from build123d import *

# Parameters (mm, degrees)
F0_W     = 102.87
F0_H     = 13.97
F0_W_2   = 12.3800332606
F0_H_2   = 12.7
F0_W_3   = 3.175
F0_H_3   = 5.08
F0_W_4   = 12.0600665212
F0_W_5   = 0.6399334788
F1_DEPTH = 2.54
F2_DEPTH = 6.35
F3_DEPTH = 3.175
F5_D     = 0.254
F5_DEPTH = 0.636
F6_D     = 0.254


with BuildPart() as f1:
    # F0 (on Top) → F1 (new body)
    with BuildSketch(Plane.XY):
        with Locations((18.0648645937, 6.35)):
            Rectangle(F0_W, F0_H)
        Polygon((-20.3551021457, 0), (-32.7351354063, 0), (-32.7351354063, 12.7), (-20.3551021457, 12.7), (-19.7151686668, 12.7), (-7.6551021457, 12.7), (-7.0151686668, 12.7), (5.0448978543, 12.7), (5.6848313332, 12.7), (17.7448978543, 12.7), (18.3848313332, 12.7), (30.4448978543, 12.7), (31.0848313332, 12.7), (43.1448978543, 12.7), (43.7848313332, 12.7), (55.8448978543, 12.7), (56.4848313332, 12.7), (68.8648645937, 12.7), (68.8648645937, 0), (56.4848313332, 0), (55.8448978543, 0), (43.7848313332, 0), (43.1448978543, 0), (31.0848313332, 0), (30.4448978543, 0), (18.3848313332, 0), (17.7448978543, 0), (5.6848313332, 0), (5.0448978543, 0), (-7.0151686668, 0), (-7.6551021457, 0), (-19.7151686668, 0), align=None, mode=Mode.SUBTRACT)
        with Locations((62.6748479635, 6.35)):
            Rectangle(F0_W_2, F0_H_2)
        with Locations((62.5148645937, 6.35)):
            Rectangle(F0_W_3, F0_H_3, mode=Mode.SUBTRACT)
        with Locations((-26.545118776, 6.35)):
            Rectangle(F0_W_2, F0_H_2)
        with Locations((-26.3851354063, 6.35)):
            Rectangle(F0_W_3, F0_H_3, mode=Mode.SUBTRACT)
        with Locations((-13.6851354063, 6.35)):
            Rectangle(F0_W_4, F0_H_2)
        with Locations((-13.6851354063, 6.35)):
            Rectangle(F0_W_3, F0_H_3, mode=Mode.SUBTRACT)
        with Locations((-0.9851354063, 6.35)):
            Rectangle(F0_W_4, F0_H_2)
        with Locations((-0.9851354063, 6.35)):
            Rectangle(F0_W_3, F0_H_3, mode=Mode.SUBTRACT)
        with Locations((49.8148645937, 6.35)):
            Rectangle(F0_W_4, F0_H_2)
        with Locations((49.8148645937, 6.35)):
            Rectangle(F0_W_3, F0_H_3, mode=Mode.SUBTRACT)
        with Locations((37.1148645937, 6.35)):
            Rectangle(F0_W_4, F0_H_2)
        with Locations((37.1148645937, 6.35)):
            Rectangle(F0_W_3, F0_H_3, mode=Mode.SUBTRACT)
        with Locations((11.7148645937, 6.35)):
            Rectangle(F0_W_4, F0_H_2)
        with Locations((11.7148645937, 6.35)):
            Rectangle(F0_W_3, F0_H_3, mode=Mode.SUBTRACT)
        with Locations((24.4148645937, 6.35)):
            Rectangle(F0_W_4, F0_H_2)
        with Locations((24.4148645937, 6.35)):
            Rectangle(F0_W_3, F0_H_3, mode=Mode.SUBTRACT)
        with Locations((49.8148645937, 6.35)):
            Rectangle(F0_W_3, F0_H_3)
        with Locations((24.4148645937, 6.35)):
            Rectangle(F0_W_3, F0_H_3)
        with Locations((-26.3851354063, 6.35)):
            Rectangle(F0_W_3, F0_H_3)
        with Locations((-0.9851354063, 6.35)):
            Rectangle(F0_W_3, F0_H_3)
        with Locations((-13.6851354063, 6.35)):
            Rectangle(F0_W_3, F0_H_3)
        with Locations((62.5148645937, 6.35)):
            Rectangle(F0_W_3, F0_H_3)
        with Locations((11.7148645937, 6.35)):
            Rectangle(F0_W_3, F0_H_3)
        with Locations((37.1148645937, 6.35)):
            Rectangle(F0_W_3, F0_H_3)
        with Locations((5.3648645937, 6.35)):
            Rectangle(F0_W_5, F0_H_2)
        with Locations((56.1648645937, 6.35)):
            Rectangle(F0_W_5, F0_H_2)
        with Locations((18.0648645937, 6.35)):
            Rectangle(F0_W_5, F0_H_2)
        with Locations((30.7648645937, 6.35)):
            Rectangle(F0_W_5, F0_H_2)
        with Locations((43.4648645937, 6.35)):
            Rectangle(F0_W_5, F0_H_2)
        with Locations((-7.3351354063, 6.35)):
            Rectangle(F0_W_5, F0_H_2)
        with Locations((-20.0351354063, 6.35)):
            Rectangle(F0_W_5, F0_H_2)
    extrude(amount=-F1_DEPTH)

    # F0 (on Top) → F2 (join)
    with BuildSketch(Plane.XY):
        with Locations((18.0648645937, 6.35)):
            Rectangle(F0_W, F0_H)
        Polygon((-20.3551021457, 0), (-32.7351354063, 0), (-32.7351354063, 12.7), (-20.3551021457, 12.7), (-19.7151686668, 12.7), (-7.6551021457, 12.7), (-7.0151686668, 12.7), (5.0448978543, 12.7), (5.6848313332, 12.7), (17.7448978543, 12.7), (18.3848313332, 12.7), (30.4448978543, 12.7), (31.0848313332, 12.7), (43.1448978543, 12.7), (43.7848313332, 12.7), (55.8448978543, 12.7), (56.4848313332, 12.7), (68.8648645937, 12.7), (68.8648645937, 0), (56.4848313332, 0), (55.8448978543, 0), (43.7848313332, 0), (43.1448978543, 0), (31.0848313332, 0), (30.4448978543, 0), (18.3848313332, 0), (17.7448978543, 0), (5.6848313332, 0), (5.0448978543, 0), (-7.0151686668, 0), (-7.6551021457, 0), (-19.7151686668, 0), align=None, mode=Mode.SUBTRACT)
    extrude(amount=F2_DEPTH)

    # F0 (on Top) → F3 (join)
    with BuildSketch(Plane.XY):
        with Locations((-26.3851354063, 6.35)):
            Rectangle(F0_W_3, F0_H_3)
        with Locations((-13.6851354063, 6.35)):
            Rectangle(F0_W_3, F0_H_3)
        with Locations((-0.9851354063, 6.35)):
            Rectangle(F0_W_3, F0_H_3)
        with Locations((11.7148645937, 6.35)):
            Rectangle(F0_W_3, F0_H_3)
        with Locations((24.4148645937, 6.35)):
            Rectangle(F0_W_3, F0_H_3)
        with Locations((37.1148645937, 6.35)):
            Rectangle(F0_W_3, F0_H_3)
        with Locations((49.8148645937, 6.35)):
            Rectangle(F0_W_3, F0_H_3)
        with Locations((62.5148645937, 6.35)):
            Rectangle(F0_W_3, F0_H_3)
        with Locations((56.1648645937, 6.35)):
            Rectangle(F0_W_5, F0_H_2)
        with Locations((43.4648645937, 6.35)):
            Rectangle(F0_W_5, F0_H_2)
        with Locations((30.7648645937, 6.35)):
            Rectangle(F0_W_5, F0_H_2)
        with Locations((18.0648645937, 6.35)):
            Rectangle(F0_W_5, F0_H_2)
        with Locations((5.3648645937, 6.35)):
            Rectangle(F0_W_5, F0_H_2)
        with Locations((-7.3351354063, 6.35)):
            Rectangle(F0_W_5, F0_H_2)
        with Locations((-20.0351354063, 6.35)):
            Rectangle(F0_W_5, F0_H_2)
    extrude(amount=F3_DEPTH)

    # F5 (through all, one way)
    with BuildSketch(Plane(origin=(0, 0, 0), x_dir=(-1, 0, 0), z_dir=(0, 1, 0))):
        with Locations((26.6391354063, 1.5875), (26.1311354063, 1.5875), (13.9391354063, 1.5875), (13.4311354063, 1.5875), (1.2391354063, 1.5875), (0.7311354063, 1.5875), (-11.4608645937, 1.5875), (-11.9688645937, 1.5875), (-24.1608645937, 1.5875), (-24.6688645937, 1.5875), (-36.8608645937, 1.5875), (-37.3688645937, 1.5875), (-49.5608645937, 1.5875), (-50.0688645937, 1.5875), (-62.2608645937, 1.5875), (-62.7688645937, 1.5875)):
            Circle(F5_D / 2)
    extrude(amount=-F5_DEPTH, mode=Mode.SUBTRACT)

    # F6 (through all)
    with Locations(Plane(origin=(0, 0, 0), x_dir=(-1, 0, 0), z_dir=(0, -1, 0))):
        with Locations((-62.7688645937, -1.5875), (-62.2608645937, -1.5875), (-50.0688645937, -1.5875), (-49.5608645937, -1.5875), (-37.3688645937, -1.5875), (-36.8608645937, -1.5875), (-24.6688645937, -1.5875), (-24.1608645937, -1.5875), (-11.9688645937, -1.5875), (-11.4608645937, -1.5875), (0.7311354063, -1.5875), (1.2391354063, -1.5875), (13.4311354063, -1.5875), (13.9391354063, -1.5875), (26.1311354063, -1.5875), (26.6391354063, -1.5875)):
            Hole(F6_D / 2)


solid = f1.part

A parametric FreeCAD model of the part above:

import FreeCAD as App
import Part
import Sketcher
Q = App.Units.Quantity


def add_polygon(sketch, points):
    """Adds a closed chain of lines whose ends are joined by coincident constraints."""
    first, n = sketch.GeometryCount, len(points)
    for a, b in zip(points, points[1:] + points[:1]):
        sketch.addGeometry(Part.LineSegment(App.Vector(*a, 0), App.Vector(*b, 0)), False)
    for i in range(n):
        sketch.addConstraint(Sketcher.Constraint("Coincident", first + i, 2, first + (i + 1) % n, 1))

doc = App.newDocument("Part")
body = doc.addObject("PartDesign::Body", "Body")

sketch1 = body.newObject("Sketcher::SketchObject", "Sketch")
sketch1.AttachmentSupport = (doc.getObject("XY_Plane"), [""])
sketch1.MapMode = "FlatFace"
add_polygon(sketch1, [(-33.370135, 13.335), (-33.370135, -0.635), (69.499865, -0.635), (69.499865, 13.335)])
sketch1.addConstraint([
    Sketcher.Constraint("Vertical", 0),
    Sketcher.Constraint("Horizontal", 1),
    Sketcher.Constraint("Vertical", 2),
    Sketcher.Constraint("Horizontal", 3),
    Sketcher.Constraint("DistanceX", 1, 1, 1, 2, Q("4.05 in")),
    Sketcher.Constraint("DistanceY", 0, 2, 0, 1, Q("0.55 in")),
    Sketcher.Constraint("DistanceY", 0, 2, -1, 1, Q("0.025 in")),
    Sketcher.Constraint("DistanceX", 0, 2, -1, 1, 33.370135),
])
pad1 = body.newObject("PartDesign::Pad", "Pad")
pad1.Profile = sketch1
pad1.Length = Q("0.1 in")
pad1.Reversed = True

sketch2 = body.newObject("Sketcher::SketchObject", "Sketch001")
sketch2.AttachmentSupport = (doc.getObject("XY_Plane"), [""])
sketch2.MapMode = "FlatFace"
add_polygon(sketch2, [(-33.370135, 13.335), (-33.370135, -0.635), (69.499865, -0.635), (69.499865, 13.335)])
add_polygon(sketch2, [(68.864865, 0), (-32.735135, 0), (-32.735135, 12.7), (68.864865, 12.7)])
sketch2.addConstraint([
    Sketcher.Constraint("Vertical", 0),
    Sketcher.Constraint("Horizontal", 1),
    Sketcher.Constraint("Vertical", 2),
    Sketcher.Constraint("Horizontal", 3),
    Sketcher.Constraint("Horizontal", 4),
    Sketcher.Constraint("Vertical", 5),
    Sketcher.Constraint("Horizontal", 6),
    Sketcher.Constraint("Vertical", 7),
    Sketcher.Constraint("PointOnObject", 4, 2, -1),
    Sketcher.Constraint("DistanceX", 4, 2, 4, 1, Q("4 in")),
    Sketcher.Constraint("DistanceY", 5, 1, 5, 2, Q("0.5 in")),
    Sketcher.Constraint("DistanceX", 1, 1, 1, 2, Q("4.05 in")),
    Sketcher.Constraint("DistanceY", 0, 2, 0, 1, Q("0.55 in")),
    Sketcher.Constraint("DistanceY", 0, 2, -1, 1, Q("0.025 in")),
    Sketcher.Constraint("DistanceX", 0, 2, 4, 2, Q("0.025 in")),
    Sketcher.Constraint("DistanceX", 0, 2, -1, 1, 33.370135),
])
pad2 = body.newObject("PartDesign::Pad", "Pad001")
pad2.Profile = sketch2
pad2.Length = Q("0.25 in")

sketch3 = body.newObject("Sketcher::SketchObject", "Sketch002")
sketch3.AttachmentSupport = (doc.getObject("XY_Plane"), [""])
sketch3.MapMode = "FlatFace"
add_polygon(sketch3, [(-27.972635, 8.89), (-27.972635, 3.81), (-24.797635, 3.81), (-24.797635, 8.89)])
add_polygon(sketch3, [(-15.272635, 8.89), (-15.272635, 3.81), (-12.097635, 3.81), (-12.097635, 8.89)])
add_polygon(sketch3, [(-2.572635, 8.89), (-2.572635, 3.81), (0.602365, 3.81), (0.602365, 8.89)])
add_polygon(sketch3, [(10.127365, 8.89), (10.127365, 3.81), (13.302365, 3.81), (13.302365, 8.89)])
add_polygon(sketch3, [(22.827365, 8.89), (22.827365, 3.81), (26.002365, 3.81), (26.002365, 8.89)])
add_polygon(sketch3, [(35.527365, 8.89), (35.527365, 3.81), (38.702365, 3.81), (38.702365, 8.89)])
add_polygon(sketch3, [(48.227365, 8.89), (48.227365, 3.81), (51.402365, 3.81), (51.402365, 8.89)])
add_polygon(sketch3, [(60.927365, 8.89), (60.927365, 3.81), (64.102365, 3.81), (64.102365, 8.89)])
add_polygon(sketch3, [(55.844898, 12.7), (55.844898, 0), (56.484831, 0), (56.484831, 12.7)])
add_polygon(sketch3, [(43.144898, 12.7), (43.144898, 0), (43.784831, 0), (43.784831, 12.7)])
add_polygon(sketch3, [(30.444898, 12.7), (30.444898, 0), (31.084831, 0), (31.084831, 12.7)])
add_polygon(sketch3, [(17.744898, 12.7), (17.744898, 0), (18.384831, 0), (18.384831, 12.7)])
add_polygon(sketch3, [(5.044898, 12.7), (5.044898, 0), (5.684831, 0), (5.684831, 12.7)])
add_polygon(sketch3, [(-7.655102, 12.7), (-7.655102, 0), (-7.015169, 0), (-7.015169, 12.7)])
add_polygon(sketch3, [(-20.355102, 12.7), (-20.355102, 0), (-19.715169, 0), (-19.715169, 12.7)])
sketch3.addConstraint([
    Sketcher.Constraint("Vertical", 0),
    Sketcher.Constraint("Horizontal", 1),
    Sketcher.Constraint("Vertical", 2),
    Sketcher.Constraint("Horizontal", 3),
    Sketcher.Constraint("Vertical", 4),
    Sketcher.Constraint("Horizontal", 5),
    Sketcher.Constraint("Vertical", 6),
    Sketcher.Constraint("Horizontal", 7),
    Sketcher.Constraint("Vertical", 8),
    Sketcher.Constraint("Horizontal", 9),
    Sketcher.Constraint("Vertical", 10),
    Sketcher.Constraint("Horizontal", 11),
    Sketcher.Constraint("Vertical", 12),
    Sketcher.Constraint("Horizontal", 13),
    Sketcher.Constraint("Vertical", 14),
    Sketcher.Constraint("Horizontal", 15),
    Sketcher.Constraint("Vertical", 16),
    Sketcher.Constraint("Horizontal", 17),
    Sketcher.Constraint("Vertical", 18),
    Sketcher.Constraint("Horizontal", 19),
    Sketcher.Constraint("Vertical", 20),
    Sketcher.Constraint("Horizontal", 21),
    Sketcher.Constraint("Vertical", 22),
    Sketcher.Constraint("Horizontal", 23),
    Sketcher.Constraint("Vertical", 24),
    Sketcher.Constraint("Horizontal", 25),
    Sketcher.Constraint("Vertical", 26),
    Sketcher.Constraint("Horizontal", 27),
    Sketcher.Constraint("Vertical", 28),
    Sketcher.Constraint("Horizontal", 29),
    Sketcher.Constraint("Vertical", 30),
    Sketcher.Constraint("Horizontal", 31),
    Sketcher.Constraint("Vertical", 32),
    Sketcher.Constraint("Horizontal", 33),
    Sketcher.Constraint("Vertical", 34),
    Sketcher.Constraint("Horizontal", 35),
    Sketcher.Constraint("Vertical", 36),
    Sketcher.Constraint("Horizontal", 37),
    Sketcher.Constraint("Vertical", 38),
    Sketcher.Constraint("Horizontal", 39),
    Sketcher.Constraint("Vertical", 40),
    Sketcher.Constraint("Horizontal", 41),
    Sketcher.Constraint("Vertical", 42),
    Sketcher.Constraint("Horizontal", 43),
    Sketcher.Constraint("Vertical", 44),
    Sketcher.Constraint("Horizontal", 45),
    Sketcher.Constraint("Vertical", 46),
    Sketcher.Constraint("Horizontal", 47),
    Sketcher.Constraint("Vertical", 48),
    Sketcher.Constraint("Horizontal", 49),
    Sketcher.Constraint("Vertical", 50),
    Sketcher.Constraint("Horizontal", 51),
    Sketcher.Constraint("Vertical", 52),
    Sketcher.Constraint("Horizontal", 53),
    Sketcher.Constraint("Vertical", 54),
    Sketcher.Constraint("Horizontal", 55),
    Sketcher.Constraint("Vertical", 56),
    Sketcher.Constraint("Horizontal", 57),
    Sketcher.Constraint("Vertical", 58),
    Sketcher.Constraint("Horizontal", 59),
    Sketcher.Constraint("PointOnObject", 32, 2, -1),
    Sketcher.Constraint("PointOnObject", 36, 2, -1),
    Sketcher.Constraint("PointOnObject", 40, 2, -1),
    Sketcher.Constraint("PointOnObject", 44, 2, -1),
    Sketcher.Constraint("PointOnObject", 48, 2, -1),
    Sketcher.Constraint("PointOnObject", 52, 2, -1),
    Sketcher.Constraint("PointOnObject", 56, 2, -1),
    Sketcher.Constraint("Horizontal", 1, 2, 4, 2),
    Sketcher.Constraint("Horizontal", 3, 2, 6, 2),
    Sketcher.Constraint("Horizontal", 5, 2, 8, 2),
    Sketcher.Constraint("Horizontal", 7, 2, 10, 2),
    Sketcher.Constraint("Horizontal", 9, 2, 12, 2),
    Sketcher.Constraint("Horizontal", 11, 2, 14, 2),
    Sketcher.Constraint("Horizontal", 13, 2, 16, 2),
    Sketcher.Constraint("Horizontal", 15, 2, 18, 2),
    Sketcher.Constraint("Horizontal", 17, 2, 20, 2),
    Sketcher.Constraint("Horizontal", 19, 2, 22, 2),
    Sketcher.Constraint("Horizontal", 21, 2, 24, 2),
    Sketcher.Constraint("Horizontal", 23, 2, 26, 2),
    Sketcher.Constraint("Horizontal", 25, 2, 28, 2),
    Sketcher.Constraint("Horizontal", 27, 2, 30, 2),
    Sketcher.Constraint("Horizontal", 35, 2, 38, 2),
    Sketcher.Constraint("Horizontal", 39, 2, 42, 2),
    Sketcher.Constraint("Horizontal", 43, 2, 46, 2),
    Sketcher.Constraint("Horizontal", 47, 2, 50, 2),
    Sketcher.Constraint("Horizontal", 51, 2, 54, 2),
    Sketcher.Constraint("Horizontal", 55, 2, 58, 2),
    Sketcher.Constraint("Equal", 3, 5),
    Sketcher.Constraint("Equal", 7, 9),
    Sketcher.Constraint("Equal", 11, 13),
    Sketcher.Constraint("Equal", 15, 17),
    Sketcher.Constraint("Equal", 19, 21),
    Sketcher.Constraint("Equal", 23, 25),
    Sketcher.Constraint("Equal", 27, 29),
    Sketcher.Constraint("Equal", 35, 37),
    Sketcher.Constraint("Equal", 39, 41),
    Sketcher.Constraint("Equal", 43, 45),
    Sketcher.Constraint("Equal", 47, 49),
    Sketcher.Constraint("Equal", 51, 53),
    Sketcher.Constraint("Equal", 55, 57),
    Sketcher.Constraint("DistanceY", 0, 2, 0, 1, Q("0.2 in")),
    Sketcher.Constraint("DistanceY", 32, 2, 32, 1, Q("0.5 in")),
    Sketcher.Constraint("DistanceX", 0, 2, 4, 2, Q("0.5 in")),
    Sketcher.Constraint("DistanceX", 4, 2, 8, 2, Q("0.5 in")),
    Sketcher.Constraint("DistanceX", 8, 2, 12, 2, Q("0.5 in")),
    Sketcher.Constraint("DistanceX", 12, 2, 16, 2, Q("0.5 in")),
    Sketcher.Constraint("DistanceX", 16, 2, 20, 2, Q("0.5 in")),
    Sketcher.Constraint("DistanceX", 20, 2, 24, 2, Q("0.5 in")),
    Sketcher.Constraint("DistanceX", 24, 2, 28, 2, Q("0.5 in")),
    Sketcher.Constraint("DistanceX", 1, 1, 1, 2, Q("0.125 in")),
    Sketcher.Constraint("DistanceY", -1, 1, 0, 2, Q("0.15 in")),
    Sketcher.Constraint("DistanceX", 33, 1, 33, 2, 0.639933),
    Sketcher.Constraint("DistanceX", -1, 1, 33, 2, 56.484831),
    Sketcher.Constraint("DistanceX", -1, 1, 37, 2, 43.784831),
    Sketcher.Constraint("DistanceX", -1, 1, 41, 2, 31.084831),
    Sketcher.Constraint("DistanceX", -1, 1, 45, 2, 18.384831),
    Sketcher.Constraint("DistanceX", -1, 1, 49, 2, 5.684831),
    Sketcher.Constraint("DistanceX", 53, 2, -1, 1, 7.015169),
    Sketcher.Constraint("DistanceX", 57, 2, -1, 1, 19.715169),
    Sketcher.Constraint("DistanceX", 0, 2, -1, 1, 27.972635),
])
pad3 = body.newObject("PartDesign::Pad", "Pad002")
pad3.Profile = sketch3
pad3.Length = Q("0.125 in")

sketch4 = body.newObject("Sketcher::SketchObject", "Sketch003")
sketch4.AttachmentSupport = (doc.getObject("XZ_Plane"), [""])
sketch4.MapMode = "FlatFace"
sketch4.addGeometry([
    Part.Circle(App.Vector(62.768865, 1.5875, 0), App.Vector(0, 0, 1), 0.127),
    Part.Circle(App.Vector(-26.639135, 1.5875, 0), App.Vector(0, 0, 1), 0.127),
    Part.Circle(App.Vector(-26.131135, 1.5875, 0), App.Vector(0, 0, 1), 0.127),
    Part.Circle(App.Vector(-13.939135, 1.5875, 0), App.Vector(0, 0, 1), 0.127),
    Part.Circle(App.Vector(-13.431135, 1.5875, 0), App.Vector(0, 0, 1), 0.127),
    Part.Circle(App.Vector(-1.239135, 1.5875, 0), App.Vector(0, 0, 1), 0.127),
    Part.Circle(App.Vector(-0.731135, 1.5875, 0), App.Vector(0, 0, 1), 0.127),
    Part.Circle(App.Vector(11.460865, 1.5875, 0), App.Vector(0, 0, 1), 0.127),
    Part.Circle(App.Vector(11.968865, 1.5875, 0), App.Vector(0, 0, 1), 0.127),
    Part.Circle(App.Vector(24.160865, 1.5875, 0), App.Vector(0, 0, 1), 0.127),
    Part.Circle(App.Vector(24.668865, 1.5875, 0), App.Vector(0, 0, 1), 0.127),
    Part.Circle(App.Vector(36.860865, 1.5875, 0), App.Vector(0, 0, 1), 0.127),
    Part.Circle(App.Vector(37.368865, 1.5875, 0), App.Vector(0, 0, 1), 0.127),
    Part.Circle(App.Vector(49.560865, 1.5875, 0), App.Vector(0, 0, 1), 0.127),
    Part.Circle(App.Vector(50.068865, 1.5875, 0), App.Vector(0, 0, 1), 0.127),
    Part.Circle(App.Vector(62.260865, 1.5875, 0), App.Vector(0, 0, 1), 0.127),
], False)
sketch4.addConstraint([
    Sketcher.Constraint("Equal", 0, 1),
    Sketcher.Constraint("Equal", 1, 2),
    Sketcher.Constraint("Equal", 2, 3),
    Sketcher.Constraint("Equal", 3, 4),
    Sketcher.Constraint("Equal", 4, 5),
    Sketcher.Constraint("Equal", 5, 6),
    Sketcher.Constraint("Equal", 6, 7),
    Sketcher.Constraint("Equal", 7, 8),
    Sketcher.Constraint("Equal", 8, 9),
    Sketcher.Constraint("Equal", 9, 10),
    Sketcher.Constraint("Equal", 10, 11),
    Sketcher.Constraint("Equal", 11, 12),
    Sketcher.Constraint("Equal", 12, 13),
    Sketcher.Constraint("Equal", 13, 14),
    Sketcher.Constraint("Equal", 14, 15),
    Sketcher.Constraint("Horizontal", 0, 3, 1, 3),
    Sketcher.Constraint("Horizontal", 1, 3, 2, 3),
    Sketcher.Constraint("Horizontal", 2, 3, 3, 3),
    Sketcher.Constraint("Horizontal", 3, 3, 4, 3),
    Sketcher.Constraint("Horizontal", 4, 3, 5, 3),
    Sketcher.Constraint("Horizontal", 5, 3, 6, 3),
    Sketcher.Constraint("Horizontal", 6, 3, 7, 3),
    Sketcher.Constraint("Horizontal", 7, 3, 8, 3),
    Sketcher.Constraint("Horizontal", 8, 3, 9, 3),
    Sketcher.Constraint("Horizontal", 9, 3, 10, 3),
    Sketcher.Constraint("Horizontal", 10, 3, 11, 3),
    Sketcher.Constraint("Horizontal", 11, 3, 12, 3),
    Sketcher.Constraint("Horizontal", 12, 3, 13, 3),
    Sketcher.Constraint("Horizontal", 13, 3, 14, 3),
    Sketcher.Constraint("Horizontal", 14, 3, 15, 3),
    Sketcher.Constraint("Diameter", 0, Q("0.01 in")),
    Sketcher.Constraint("DistanceX", 4, 3, 0, 3, Q("3 in")),
    Sketcher.Constraint("DistanceX", 1, 3, 5, 3, Q("1 in")),
    Sketcher.Constraint("DistanceX", 2, 3, 6, 3, Q("1 in")),
    Sketcher.Constraint("DistanceX", 3, 3, 7, 3, Q("1 in")),
    Sketcher.Constraint("DistanceX", 4, 3, 8, 3, Q("1 in")),
    Sketcher.Constraint("DistanceX", 5, 3, 9, 3, Q("1 in")),
    Sketcher.Constraint("DistanceX", 6, 3, 10, 3, Q("1 in")),
    Sketcher.Constraint("DistanceX", 7, 3, 11, 3, Q("1 in")),
    Sketcher.Constraint("DistanceX", 12, 3, 0, 3, Q("1 in")),
    Sketcher.Constraint("DistanceX", 9, 3, 13, 3, Q("1 in")),
    Sketcher.Constraint("DistanceX", 10, 3, 14, 3, Q("1 in")),
    Sketcher.Constraint("DistanceX", 11, 3, 15, 3, Q("1 in")),
    Sketcher.Constraint("DistanceX", 2, 3, 0, 3, Q("3.5 in")),
    Sketcher.Constraint("DistanceX", 1, 3, 3, 3, Q("0.5 in")),
    Sketcher.Constraint("DistanceX", 1, 3, 0, 3, Q("3.52 in")),
    Sketcher.Constraint("DistanceY", -1, 1, 0, 3, Q("0.0625 in")),
    Sketcher.Constraint("DistanceX", -1, 1, 0, 3, 62.768865),
])
pocket1 = body.newObject("PartDesign::Pocket", "Pocket")
pocket1.Profile = sketch4
pocket1.Type = "ThroughAll"
pocket1.Reversed = True

sketch5 = body.newObject("Sketcher::SketchObject", "Sketch004")
sketch5.AttachmentSupport = (doc.getObject("XZ_Plane"), [""])
sketch5.MapMode = "FlatFace"
sketch5.addGeometry([
    Part.Circle(App.Vector(62.768865, 1.5875, 0), App.Vector(0, 0, 1), 0.127),
    Part.Circle(App.Vector(62.260865, 1.5875, 0), App.Vector(0, 0, 1), 0.127),
    Part.Circle(App.Vector(50.068865, 1.5875, 0), App.Vector(0, 0, 1), 0.127),
    Part.Circle(App.Vector(49.560865, 1.5875, 0), App.Vector(0, 0, 1), 0.127),
    Part.Circle(App.Vector(37.368865, 1.5875, 0), App.Vector(0, 0, 1), 0.127),
    Part.Circle(App.Vector(36.860865, 1.5875, 0), App.Vector(0, 0, 1), 0.127),
    Part.Circle(App.Vector(24.668865, 1.5875, 0), App.Vector(0, 0, 1), 0.127),
    Part.Circle(App.Vector(24.160865, 1.5875, 0), App.Vector(0, 0, 1), 0.127),
    Part.Circle(App.Vector(11.968865, 1.5875, 0), App.Vector(0, 0, 1), 0.127),
    Part.Circle(App.Vector(11.460865, 1.5875, 0), App.Vector(0, 0, 1), 0.127),
    Part.Circle(App.Vector(-0.731135, 1.5875, 0), App.Vector(0, 0, 1), 0.127),
    Part.Circle(App.Vector(-1.239135, 1.5875, 0), App.Vector(0, 0, 1), 0.127),
    Part.Circle(App.Vector(-13.431135, 1.5875, 0), App.Vector(0, 0, 1), 0.127),
    Part.Circle(App.Vector(-13.939135, 1.5875, 0), App.Vector(0, 0, 1), 0.127),
    Part.Circle(App.Vector(-26.131135, 1.5875, 0), App.Vector(0, 0, 1), 0.127),
    Part.Circle(App.Vector(-26.639135, 1.5875, 0), App.Vector(0, 0, 1), 0.127),
], False)
sketch5.addConstraint([
    Sketcher.Constraint("Equal", 0, 1),
    Sketcher.Constraint("Equal", 1, 2),
    Sketcher.Constraint("Equal", 2, 3),
    Sketcher.Constraint("Equal", 3, 4),
    Sketcher.Constraint("Equal", 4, 5),
    Sketcher.Constraint("Equal", 5, 6),
    Sketcher.Constraint("Equal", 6, 7),
    Sketcher.Constraint("Equal", 7, 8),
    Sketcher.Constraint("Equal", 8, 9),
    Sketcher.Constraint("Equal", 9, 10),
    Sketcher.Constraint("Equal", 10, 11),
    Sketcher.Constraint("Equal", 11, 12),
    Sketcher.Constraint("Equal", 12, 13),
    Sketcher.Constraint("Equal", 13, 14),
    Sketcher.Constraint("Equal", 14, 15),
    Sketcher.Constraint("Horizontal", 0, 3, 1, 3),
    Sketcher.Constraint("Horizontal", 1, 3, 2, 3),
    Sketcher.Constraint("Horizontal", 2, 3, 3, 3),
    Sketcher.Constraint("Horizontal", 3, 3, 4, 3),
    Sketcher.Constraint("Horizontal", 4, 3, 5, 3),
    Sketcher.Constraint("Horizontal", 5, 3, 6, 3),
    Sketcher.Constraint("Horizontal", 6, 3, 7, 3),
    Sketcher.Constraint("Horizontal", 7, 3, 8, 3),
    Sketcher.Constraint("Horizontal", 8, 3, 9, 3),
    Sketcher.Constraint("Horizontal", 9, 3, 10, 3),
    Sketcher.Constraint("Horizontal", 10, 3, 11, 3),
    Sketcher.Constraint("Horizontal", 11, 3, 12, 3),
    Sketcher.Constraint("Horizontal", 12, 3, 13, 3),
    Sketcher.Constraint("Horizontal", 13, 3, 14, 3),
    Sketcher.Constraint("Horizontal", 14, 3, 15, 3),
    Sketcher.Constraint("Diameter", 0, Q("0.01 in")),
    Sketcher.Constraint("DistanceX", 4, 3, 0, 3, Q("1 in")),
    Sketcher.Constraint("DistanceX", 5, 3, 1, 3, Q("1 in")),
    Sketcher.Constraint("DistanceX", 6, 3, 2, 3, Q("1 in")),
    Sketcher.Constraint("DistanceX", 7, 3, 3, 3, Q("1 in")),
    Sketcher.Constraint("DistanceX", 8, 3, 4, 3, Q("1 in")),
    Sketcher.Constraint("DistanceX", 9, 3, 5, 3, Q("1 in")),
    Sketcher.Constraint("DistanceX", 10, 3, 6, 3, Q("1 in")),
    Sketcher.Constraint("DistanceX", 11, 3, 7, 3, Q("1 in")),
    Sketcher.Constraint("DistanceX", 12, 3, 8, 3, Q("1 in")),
    Sketcher.Constraint("DistanceX", 13, 3, 9, 3, Q("1 in")),
    Sketcher.Constraint("DistanceX", 14, 3, 10, 3, Q("1 in")),
    Sketcher.Constraint("DistanceX", 15, 3, 11, 3, Q("1 in")),
    Sketcher.Constraint("DistanceX", 2, 3, 0, 3, Q("0.5 in")),
    Sketcher.Constraint("DistanceX", 3, 3, 1, 3, Q("0.5 in")),
    Sketcher.Constraint("DistanceX", 1, 3, 0, 3, Q("0.02 in")),
    Sketcher.Constraint("DistanceY", -1, 1, 0, 3, Q("0.0625 in")),
    Sketcher.Constraint("DistanceX", -1, 1, 0, 3, 62.768865),
])
doc.recompute()
hole = body.newObject("PartDesign::Hole", "Hole")
hole.Profile = sketch5
hole.ThreadType = "None"
hole.Diameter = Q("0.01 in")
hole.DepthType = "ThroughAll"

doc.recompute()
